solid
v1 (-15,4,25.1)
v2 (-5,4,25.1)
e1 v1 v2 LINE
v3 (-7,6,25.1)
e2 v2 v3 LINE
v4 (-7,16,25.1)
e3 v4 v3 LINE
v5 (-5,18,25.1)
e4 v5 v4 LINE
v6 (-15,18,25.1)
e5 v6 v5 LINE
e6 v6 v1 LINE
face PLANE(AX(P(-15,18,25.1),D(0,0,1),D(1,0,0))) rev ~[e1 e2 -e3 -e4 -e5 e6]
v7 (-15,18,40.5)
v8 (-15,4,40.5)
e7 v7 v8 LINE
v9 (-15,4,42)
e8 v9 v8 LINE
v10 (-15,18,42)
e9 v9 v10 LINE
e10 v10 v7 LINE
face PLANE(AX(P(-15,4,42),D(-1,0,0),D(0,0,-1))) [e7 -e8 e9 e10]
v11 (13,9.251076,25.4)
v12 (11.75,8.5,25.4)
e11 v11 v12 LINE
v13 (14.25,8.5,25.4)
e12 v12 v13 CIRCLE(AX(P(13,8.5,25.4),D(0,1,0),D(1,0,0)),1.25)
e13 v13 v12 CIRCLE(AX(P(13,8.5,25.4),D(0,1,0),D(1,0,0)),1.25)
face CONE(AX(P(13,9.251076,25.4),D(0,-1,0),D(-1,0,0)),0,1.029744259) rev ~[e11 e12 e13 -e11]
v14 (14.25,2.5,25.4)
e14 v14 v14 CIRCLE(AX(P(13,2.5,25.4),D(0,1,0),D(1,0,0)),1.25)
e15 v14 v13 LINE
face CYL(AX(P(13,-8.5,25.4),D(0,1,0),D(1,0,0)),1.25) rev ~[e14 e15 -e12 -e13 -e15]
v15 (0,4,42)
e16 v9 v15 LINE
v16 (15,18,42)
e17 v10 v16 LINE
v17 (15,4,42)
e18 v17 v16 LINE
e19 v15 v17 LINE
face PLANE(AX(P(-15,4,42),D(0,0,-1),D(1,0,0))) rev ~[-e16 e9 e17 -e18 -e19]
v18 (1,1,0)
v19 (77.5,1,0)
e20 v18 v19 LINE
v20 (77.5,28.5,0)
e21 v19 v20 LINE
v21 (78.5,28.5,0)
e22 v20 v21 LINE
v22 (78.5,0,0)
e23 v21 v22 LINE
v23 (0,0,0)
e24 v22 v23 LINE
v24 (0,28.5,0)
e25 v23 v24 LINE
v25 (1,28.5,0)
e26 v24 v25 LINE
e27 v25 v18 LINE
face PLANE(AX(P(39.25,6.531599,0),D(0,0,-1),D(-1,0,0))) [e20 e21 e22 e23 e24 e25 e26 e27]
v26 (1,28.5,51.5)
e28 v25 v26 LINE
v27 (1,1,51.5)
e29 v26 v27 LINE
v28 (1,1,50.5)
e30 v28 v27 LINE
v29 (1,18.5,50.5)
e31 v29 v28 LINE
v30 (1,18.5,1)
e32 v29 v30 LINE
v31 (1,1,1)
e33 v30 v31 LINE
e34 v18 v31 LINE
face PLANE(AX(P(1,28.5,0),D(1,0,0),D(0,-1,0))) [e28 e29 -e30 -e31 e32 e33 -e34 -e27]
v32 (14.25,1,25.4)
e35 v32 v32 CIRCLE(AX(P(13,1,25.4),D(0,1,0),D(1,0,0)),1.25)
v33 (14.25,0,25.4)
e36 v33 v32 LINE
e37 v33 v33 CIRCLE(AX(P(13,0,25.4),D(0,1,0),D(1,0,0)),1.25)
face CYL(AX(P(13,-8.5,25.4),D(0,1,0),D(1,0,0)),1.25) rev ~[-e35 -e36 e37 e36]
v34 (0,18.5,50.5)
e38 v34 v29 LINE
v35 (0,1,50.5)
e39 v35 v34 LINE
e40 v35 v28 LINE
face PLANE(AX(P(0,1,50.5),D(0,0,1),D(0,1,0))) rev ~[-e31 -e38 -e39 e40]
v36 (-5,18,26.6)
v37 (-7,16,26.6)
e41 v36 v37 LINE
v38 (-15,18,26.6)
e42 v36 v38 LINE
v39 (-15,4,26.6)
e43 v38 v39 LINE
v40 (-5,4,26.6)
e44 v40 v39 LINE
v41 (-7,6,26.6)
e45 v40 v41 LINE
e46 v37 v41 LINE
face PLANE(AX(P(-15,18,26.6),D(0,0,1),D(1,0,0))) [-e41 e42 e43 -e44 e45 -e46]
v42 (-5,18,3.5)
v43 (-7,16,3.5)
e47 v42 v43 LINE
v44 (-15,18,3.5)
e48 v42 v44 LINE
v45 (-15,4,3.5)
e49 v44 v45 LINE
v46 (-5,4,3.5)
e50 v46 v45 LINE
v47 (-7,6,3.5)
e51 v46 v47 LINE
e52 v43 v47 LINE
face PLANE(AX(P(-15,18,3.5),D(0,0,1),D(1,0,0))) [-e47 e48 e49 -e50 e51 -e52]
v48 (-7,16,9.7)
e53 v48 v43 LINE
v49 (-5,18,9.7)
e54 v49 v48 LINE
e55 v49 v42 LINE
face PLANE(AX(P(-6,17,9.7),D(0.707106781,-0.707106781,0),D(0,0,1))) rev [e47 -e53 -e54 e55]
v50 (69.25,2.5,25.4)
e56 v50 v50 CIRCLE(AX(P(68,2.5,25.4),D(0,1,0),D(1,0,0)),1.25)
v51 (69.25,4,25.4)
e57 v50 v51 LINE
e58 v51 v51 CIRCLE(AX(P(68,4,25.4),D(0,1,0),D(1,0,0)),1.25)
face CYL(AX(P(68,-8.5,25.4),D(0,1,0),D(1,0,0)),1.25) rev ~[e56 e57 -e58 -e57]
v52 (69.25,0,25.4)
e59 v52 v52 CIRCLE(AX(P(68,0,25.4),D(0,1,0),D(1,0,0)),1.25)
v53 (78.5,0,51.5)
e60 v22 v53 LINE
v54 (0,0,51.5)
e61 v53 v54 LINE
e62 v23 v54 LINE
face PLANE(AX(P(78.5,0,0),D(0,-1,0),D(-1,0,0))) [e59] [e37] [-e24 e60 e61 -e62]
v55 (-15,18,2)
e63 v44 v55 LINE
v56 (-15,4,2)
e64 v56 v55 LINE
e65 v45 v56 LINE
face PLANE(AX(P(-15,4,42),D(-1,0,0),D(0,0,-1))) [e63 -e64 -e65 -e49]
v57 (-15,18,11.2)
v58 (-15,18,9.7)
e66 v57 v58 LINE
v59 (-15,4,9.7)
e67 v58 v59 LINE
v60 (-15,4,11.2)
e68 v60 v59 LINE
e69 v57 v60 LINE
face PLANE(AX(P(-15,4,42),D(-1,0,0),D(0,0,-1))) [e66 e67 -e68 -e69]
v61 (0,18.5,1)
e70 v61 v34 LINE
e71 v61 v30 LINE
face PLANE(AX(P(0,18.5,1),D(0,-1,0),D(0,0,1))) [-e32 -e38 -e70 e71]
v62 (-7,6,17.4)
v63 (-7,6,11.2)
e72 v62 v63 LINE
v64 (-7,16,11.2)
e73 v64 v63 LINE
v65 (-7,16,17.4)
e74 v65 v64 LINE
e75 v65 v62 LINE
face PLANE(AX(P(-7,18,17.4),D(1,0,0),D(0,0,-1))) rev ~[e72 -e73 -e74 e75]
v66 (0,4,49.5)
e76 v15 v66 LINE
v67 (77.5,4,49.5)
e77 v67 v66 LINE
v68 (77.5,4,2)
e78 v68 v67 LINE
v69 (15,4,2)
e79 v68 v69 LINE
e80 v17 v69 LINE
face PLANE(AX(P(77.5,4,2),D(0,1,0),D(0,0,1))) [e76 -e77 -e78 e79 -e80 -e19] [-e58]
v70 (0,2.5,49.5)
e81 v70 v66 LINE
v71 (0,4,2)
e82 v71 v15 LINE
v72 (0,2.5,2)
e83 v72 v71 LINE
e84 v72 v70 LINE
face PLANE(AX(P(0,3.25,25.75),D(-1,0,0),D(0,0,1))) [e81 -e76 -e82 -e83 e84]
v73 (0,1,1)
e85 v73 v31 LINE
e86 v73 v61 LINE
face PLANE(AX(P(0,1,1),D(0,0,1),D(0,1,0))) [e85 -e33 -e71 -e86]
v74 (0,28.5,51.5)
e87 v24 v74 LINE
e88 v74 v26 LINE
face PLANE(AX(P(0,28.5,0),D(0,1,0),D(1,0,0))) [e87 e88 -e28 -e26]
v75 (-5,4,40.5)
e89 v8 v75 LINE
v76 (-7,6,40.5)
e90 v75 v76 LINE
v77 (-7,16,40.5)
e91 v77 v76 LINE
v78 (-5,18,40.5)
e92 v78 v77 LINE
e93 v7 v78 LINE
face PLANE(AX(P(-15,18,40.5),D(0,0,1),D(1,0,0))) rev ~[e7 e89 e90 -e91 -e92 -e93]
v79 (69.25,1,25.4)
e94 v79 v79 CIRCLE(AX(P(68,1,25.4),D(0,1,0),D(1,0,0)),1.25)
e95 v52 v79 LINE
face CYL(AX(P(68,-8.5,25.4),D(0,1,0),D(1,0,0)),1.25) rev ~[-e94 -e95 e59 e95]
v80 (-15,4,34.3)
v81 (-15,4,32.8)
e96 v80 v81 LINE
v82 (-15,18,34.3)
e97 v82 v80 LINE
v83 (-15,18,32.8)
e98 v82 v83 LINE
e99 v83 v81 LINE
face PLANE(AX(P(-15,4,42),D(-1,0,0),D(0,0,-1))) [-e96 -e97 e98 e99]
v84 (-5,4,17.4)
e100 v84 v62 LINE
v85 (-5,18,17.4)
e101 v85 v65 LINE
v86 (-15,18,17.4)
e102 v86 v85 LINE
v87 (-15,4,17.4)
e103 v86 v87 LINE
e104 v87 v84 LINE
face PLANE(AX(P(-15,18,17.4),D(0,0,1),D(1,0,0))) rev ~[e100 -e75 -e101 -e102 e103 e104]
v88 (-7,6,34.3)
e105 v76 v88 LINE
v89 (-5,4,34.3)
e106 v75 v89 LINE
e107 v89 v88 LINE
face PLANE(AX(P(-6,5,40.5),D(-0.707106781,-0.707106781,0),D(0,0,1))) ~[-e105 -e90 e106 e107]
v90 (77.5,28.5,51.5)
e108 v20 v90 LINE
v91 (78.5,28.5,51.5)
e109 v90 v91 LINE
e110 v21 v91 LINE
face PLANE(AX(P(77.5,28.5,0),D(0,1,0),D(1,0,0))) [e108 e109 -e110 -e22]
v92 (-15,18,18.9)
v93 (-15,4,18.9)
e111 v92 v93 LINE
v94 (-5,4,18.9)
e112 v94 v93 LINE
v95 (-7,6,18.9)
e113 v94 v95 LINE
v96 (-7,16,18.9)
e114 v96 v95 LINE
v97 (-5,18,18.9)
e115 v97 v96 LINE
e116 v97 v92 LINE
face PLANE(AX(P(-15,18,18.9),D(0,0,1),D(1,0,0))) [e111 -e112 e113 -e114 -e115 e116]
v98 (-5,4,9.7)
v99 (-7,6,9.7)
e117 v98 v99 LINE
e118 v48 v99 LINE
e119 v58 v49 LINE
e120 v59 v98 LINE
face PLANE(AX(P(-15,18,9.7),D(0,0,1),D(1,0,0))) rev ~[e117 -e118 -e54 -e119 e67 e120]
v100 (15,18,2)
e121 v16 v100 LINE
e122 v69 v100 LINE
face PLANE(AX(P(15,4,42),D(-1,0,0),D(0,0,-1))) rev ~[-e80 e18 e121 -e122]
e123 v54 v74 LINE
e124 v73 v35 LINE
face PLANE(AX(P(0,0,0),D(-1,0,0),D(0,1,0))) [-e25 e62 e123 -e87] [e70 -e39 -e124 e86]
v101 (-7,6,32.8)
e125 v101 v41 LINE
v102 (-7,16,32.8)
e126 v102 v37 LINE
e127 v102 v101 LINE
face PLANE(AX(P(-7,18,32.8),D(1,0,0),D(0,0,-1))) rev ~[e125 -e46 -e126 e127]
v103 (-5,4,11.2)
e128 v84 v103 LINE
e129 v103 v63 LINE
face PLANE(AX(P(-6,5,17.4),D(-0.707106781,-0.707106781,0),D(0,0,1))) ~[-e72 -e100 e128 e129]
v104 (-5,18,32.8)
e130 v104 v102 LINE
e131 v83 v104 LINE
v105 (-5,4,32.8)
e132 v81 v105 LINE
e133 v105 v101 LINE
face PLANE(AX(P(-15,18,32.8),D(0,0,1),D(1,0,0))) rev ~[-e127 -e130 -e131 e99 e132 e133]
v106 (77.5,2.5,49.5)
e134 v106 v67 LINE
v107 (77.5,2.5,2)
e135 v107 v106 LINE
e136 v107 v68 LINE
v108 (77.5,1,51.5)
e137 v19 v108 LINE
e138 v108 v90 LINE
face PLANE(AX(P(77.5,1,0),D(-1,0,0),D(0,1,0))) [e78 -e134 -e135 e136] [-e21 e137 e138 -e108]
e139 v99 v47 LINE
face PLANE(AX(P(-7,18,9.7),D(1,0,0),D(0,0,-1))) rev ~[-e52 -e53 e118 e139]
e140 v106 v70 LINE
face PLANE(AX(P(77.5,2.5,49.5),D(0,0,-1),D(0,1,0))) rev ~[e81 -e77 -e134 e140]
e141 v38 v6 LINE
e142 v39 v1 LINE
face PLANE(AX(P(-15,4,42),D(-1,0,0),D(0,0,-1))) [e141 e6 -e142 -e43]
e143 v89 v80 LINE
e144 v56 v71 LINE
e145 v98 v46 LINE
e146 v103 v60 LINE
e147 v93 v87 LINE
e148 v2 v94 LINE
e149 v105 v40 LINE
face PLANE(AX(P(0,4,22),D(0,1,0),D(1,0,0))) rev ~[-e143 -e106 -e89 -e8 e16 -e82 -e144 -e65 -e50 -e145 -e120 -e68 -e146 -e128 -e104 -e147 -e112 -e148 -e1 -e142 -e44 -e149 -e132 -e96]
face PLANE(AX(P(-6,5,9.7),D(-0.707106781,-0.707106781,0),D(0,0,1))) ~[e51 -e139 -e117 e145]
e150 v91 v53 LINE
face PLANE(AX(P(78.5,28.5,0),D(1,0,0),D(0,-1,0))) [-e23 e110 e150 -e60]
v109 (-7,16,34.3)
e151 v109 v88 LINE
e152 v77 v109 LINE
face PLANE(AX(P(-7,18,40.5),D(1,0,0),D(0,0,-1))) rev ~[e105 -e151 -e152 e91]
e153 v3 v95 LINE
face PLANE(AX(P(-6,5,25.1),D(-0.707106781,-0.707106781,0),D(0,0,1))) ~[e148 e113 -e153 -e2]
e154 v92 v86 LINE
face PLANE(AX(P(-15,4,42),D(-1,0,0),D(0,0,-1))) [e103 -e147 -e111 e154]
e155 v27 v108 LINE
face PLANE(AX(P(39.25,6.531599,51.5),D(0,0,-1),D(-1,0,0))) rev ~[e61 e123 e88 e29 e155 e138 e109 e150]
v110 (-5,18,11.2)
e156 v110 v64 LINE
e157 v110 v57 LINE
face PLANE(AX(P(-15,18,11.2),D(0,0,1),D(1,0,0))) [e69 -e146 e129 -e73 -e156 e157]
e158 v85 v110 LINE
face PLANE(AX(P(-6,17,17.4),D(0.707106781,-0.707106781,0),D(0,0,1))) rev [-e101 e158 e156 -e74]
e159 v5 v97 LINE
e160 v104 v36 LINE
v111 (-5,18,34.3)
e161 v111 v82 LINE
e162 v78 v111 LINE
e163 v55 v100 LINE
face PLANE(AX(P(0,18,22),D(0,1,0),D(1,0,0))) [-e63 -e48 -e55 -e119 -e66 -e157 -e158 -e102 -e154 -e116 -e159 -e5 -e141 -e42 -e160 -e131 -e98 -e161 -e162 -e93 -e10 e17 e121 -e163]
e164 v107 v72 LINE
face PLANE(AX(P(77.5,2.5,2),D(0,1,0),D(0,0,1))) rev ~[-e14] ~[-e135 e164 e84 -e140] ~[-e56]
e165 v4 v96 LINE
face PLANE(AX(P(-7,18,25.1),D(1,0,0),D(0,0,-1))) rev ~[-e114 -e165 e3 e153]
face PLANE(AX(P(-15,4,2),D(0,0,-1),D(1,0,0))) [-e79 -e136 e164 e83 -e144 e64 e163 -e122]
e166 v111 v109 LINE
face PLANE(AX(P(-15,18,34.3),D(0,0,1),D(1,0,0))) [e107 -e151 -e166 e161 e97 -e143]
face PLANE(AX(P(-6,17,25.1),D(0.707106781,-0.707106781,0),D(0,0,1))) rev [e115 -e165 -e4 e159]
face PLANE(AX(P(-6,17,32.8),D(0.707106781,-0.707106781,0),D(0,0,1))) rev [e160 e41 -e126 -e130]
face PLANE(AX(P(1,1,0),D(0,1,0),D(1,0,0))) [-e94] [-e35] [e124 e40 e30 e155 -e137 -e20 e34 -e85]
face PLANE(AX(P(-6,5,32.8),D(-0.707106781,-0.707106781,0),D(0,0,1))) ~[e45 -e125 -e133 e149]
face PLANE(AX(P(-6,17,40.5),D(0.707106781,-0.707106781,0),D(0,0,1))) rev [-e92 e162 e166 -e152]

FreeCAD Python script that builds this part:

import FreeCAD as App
import Part
import Sketcher


def edges_at(feature, points):
    """Names of the edges that pass closest to the given points."""
    edges = feature.Shape.Edges
    near = lambda p: min(range(len(edges)), key=lambda i: edges[i].distToShape(Part.Vertex(*p))[0])
    return sorted({f"Edge{near(p) + 1}" for p in points})

doc = App.newDocument("Part")
body = doc.addObject("PartDesign::Body", "Body")

sketch1 = doc.addObject("Sketcher::SketchObject", "Sketch")
body.addObject(sketch1)
sketch1.AttachmentSupport = (doc.XY_Plane, [""])
sketch1.MapMode = "FlatFace"
sketch1.addGeometry([
    Part.LineSegment(App.Vector(77.5, 1, 0), App.Vector(1, 1, 0)),
    Part.LineSegment(App.Vector(1, 1, 0), App.Vector(1, 28.5, 0)),
    Part.LineSegment(App.Vector(1, 28.5, 0), App.Vector(0, 28.5, 0)),
    Part.LineSegment(App.Vector(0, 28.5, 0), App.Vector(0, 0, 0)),
    Part.LineSegment(App.Vector(0, 0, 0), App.Vector(78.5, 0, 0)),
    Part.LineSegment(App.Vector(78.5, 0, 0), App.Vector(78.5, 28.5, 0)),
    Part.LineSegment(App.Vector(78.5, 28.5, 0), App.Vector(77.5, 28.5, 0)),
    Part.LineSegment(App.Vector(77.5, 28.5, 0), App.Vector(77.5, 1, 0)),
], False)
sketch1.addConstraint([
    Sketcher.Constraint("Coincident", 0, 2, 1, 1),
    Sketcher.Constraint("Coincident", 1, 2, 2, 1),
    Sketcher.Constraint("Coincident", 2, 2, 3, 1),
    Sketcher.Constraint("Coincident", 3, 2, 4, 1),
    Sketcher.Constraint("Coincident", 4, 2, 5, 1),
    Sketcher.Constraint("Coincident", 5, 2, 6, 1),
    Sketcher.Constraint("Coincident", 6, 2, 7, 1),
    Sketcher.Constraint("Coincident", 7, 2, 0, 1),
    Sketcher.Constraint("Horizontal", 0),
    Sketcher.Constraint("Vertical", 1),
    Sketcher.Constraint("Horizontal", 2),
    Sketcher.Constraint("Vertical", 3),
    Sketcher.Constraint("Horizontal", 4),
    Sketcher.Constraint("Vertical", 5),
    Sketcher.Constraint("Horizontal", 6),
    Sketcher.Constraint("Vertical", 7),
    Sketcher.Constraint("Coincident", 3, 2, -1, 1),
    Sketcher.Constraint("Horizontal", 2, 2, 5, 2),
    Sketcher.Constraint("Equal", 2, 6),
    Sketcher.Constraint("DistanceX", 2, 2, 2, 1, 1.0),
    Sketcher.Constraint("DistanceX", 0, 2, 0, 1, 76.5),
    Sketcher.Constraint("DistanceY", 1, 1, 1, 2, 27.5),
    Sketcher.Constraint("DistanceY", 3, 2, 3, 1, 28.5),
])
pad1 = doc.addObject("PartDesign::Pad", "Pad")
body.addObject(pad1)
pad1.Profile = sketch1
pad1.Length = 51.5

sketch2 = doc.addObject("Sketcher::SketchObject", "Sketch001")
body.addObject(sketch2)
sketch2.AttachmentSupport = (doc.YZ_Plane, [""])
sketch2.MapMode = "FlatFace"
sketch2.addGeometry([
    Part.LineSegment(App.Vector(18, 1, 0), App.Vector(1, 1, 0)),
    Part.LineSegment(App.Vector(1, 1, 0), App.Vector(1, 50, 0)),
    Part.LineSegment(App.Vector(1, 50, 0), App.Vector(18, 50, 0)),
    Part.LineSegment(App.Vector(18, 50, 0), App.Vector(18, 1, 0)),
], False)
sketch2.addConstraint([
    Sketcher.Constraint("Coincident", 0, 2, 1, 1),
    Sketcher.Constraint("Coincident", 1, 2, 2, 1),
    Sketcher.Constraint("Coincident", 2, 2, 3, 1),
    Sketcher.Constraint("Coincident", 3, 2, 0, 1),
    Sketcher.Constraint("Horizontal", 0),
    Sketcher.Constraint("Vertical", 1),
    Sketcher.Constraint("Horizontal", 2),
    Sketcher.Constraint("Vertical", 3),
    Sketcher.Constraint("DistanceX", 0, 2, 0, 1, 17.5),
    Sketcher.Constraint("DistanceY", 1, 1, 1, 2, 49.5),
    Sketcher.Constraint("DistanceX", -1, 1, 0, 2, 1.0),
    Sketcher.Constraint("DistanceY", -1, 1, 0, 2, 1.0),
])
pocket1 = doc.addObject("PartDesign::Pocket", "Pocket")
body.addObject(pocket1)
pocket1.Profile = sketch2
pocket1.Length = 10
pocket1.Reversed = True

sketch3 = doc.addObject("Sketcher::SketchObject", "Sketch002")
body.addObject(sketch3)
sketch3.AttachmentSupport = (doc.YZ_Plane, [""])
sketch3.MapMode = "FlatFace"
sketch3.AttachmentOffset = App.Placement(App.Vector(0, 0, 77.5), App.Rotation())
sketch3.addGeometry([
    Part.LineSegment(App.Vector(4, 2, 0), App.Vector(2.5, 2, 0)),
    Part.LineSegment(App.Vector(2.5, 2, 0), App.Vector(2.5, 49.5, 0)),
    Part.LineSegment(App.Vector(2.5, 49.5, 0), App.Vector(4, 49.5, 0)),
    Part.LineSegment(App.Vector(4, 49.5, 0), App.Vector(4, 2, 0)),
], False)
sketch3.addConstraint([
    Sketcher.Constraint("Coincident", 0, 2, 1, 1),
    Sketcher.Constraint("Coincident", 1, 2, 2, 1),
    Sketcher.Constraint("Coincident", 2, 2, 3, 1),
    Sketcher.Constraint("Coincident", 3, 2, 0, 1),
    Sketcher.Constraint("Horizontal", 0),
    Sketcher.Constraint("Vertical", 1),
    Sketcher.Constraint("Horizontal", 2),
    Sketcher.Constraint("Vertical", 3),
    Sketcher.Constraint("DistanceX", 0, 2, 0, 1, 1.5),
    Sketcher.Constraint("DistanceY", 1, 1, 1, 2, 47.5),
    Sketcher.Constraint("DistanceY", -1, 1, 0, 2, 2.0),
    Sketcher.Constraint("DistanceX", -1, 1, 2, 2, 4.0),
])
pad2 = doc.addObject("PartDesign::Pad", "Pad001")
body.addObject(pad2)
pad2.Profile = sketch3
pad2.Length = 77.5
pad2.Reversed = True

sketch4 = doc.addObject("Sketcher::SketchObject", "Sketch003")
body.addObject(sketch4)
sketch4.AttachmentSupport = (doc.XZ_Plane, [""])
sketch4.MapMode = "FlatFace"
sketch4.AttachmentOffset = App.Placement(App.Vector(0, 0, -4), App.Rotation())
sketch4.addGeometry([
    Part.LineSegment(App.Vector(-15, 2, 0), App.Vector(-15, 42, 0)),
    Part.LineSegment(App.Vector(-15, 42, 0), App.Vector(15, 42, 0)),
    Part.LineSegment(App.Vector(15, 42, 0), App.Vector(15, 2, 0)),
    Part.LineSegment(App.Vector(15, 2, 0), App.Vector(-15, 2, 0)),
], False)
sketch4.addConstraint([
    Sketcher.Constraint("Coincident", 0, 2, 1, 1),
    Sketcher.Constraint("Coincident", 1, 2, 2, 1),
    Sketcher.Constraint("Coincident", 2, 2, 3, 1),
    Sketcher.Constraint("Coincident", 3, 2, 0, 1),
    Sketcher.Constraint("Vertical", 0),
    Sketcher.Constraint("Horizontal", 1),
    Sketcher.Constraint("Vertical", 2),
    Sketcher.Constraint("Horizontal", 3),
    Sketcher.Constraint("DistanceX", 1, 1, 1, 2, 30.0),
    Sketcher.Constraint("DistanceY", 0, 1, 0, 2, 40.0),
    Sketcher.Constraint("DistanceX", 0, 2, -1, 1, 15.0),
    Sketcher.Constraint("DistanceY", -1, 1, 0, 2, 42.0),
])
pad3 = doc.addObject("PartDesign::Pad", "Pad002")
body.addObject(pad3)
pad3.Profile = sketch4
pad3.Length = 14
pad3.Reversed = True

sketch5 = doc.addObject("Sketcher::SketchObject", "Sketch004")
body.addObject(sketch5)
sketch5.AttachmentSupport = (doc.XZ_Plane, [""])
sketch5.MapMode = "FlatFace"
sketch5.AttachmentOffset = App.Placement(App.Vector(0, 0, -18), App.Rotation())
sketch5.addGeometry([
    Part.LineSegment(App.Vector(-15, 4, 0), App.Vector(-15, 10, 0)),
    Part.LineSegment(App.Vector(-15, 10, 0), App.Vector(-7, 10, 0)),
    Part.LineSegment(App.Vector(-7, 10, 0), App.Vector(-7, 4, 0)),
    Part.LineSegment(App.Vector(-7, 4, 0), App.Vector(-15, 4, 0)),
    Part.LineSegment(App.Vector(-15, 34, 0), App.Vector(-15, 40, 0)),
    Part.LineSegment(App.Vector(-15, 40, 0), App.Vector(-7, 40, 0)),
    Part.LineSegment(App.Vector(-7, 40, 0), App.Vector(-7, 34, 0)),
    Part.LineSegment(App.Vector(-7, 34, 0), App.Vector(-15, 34, 0)),
    Part.LineSegment(App.Vector(-15, 11, 0), App.Vector(-15, 17, 0)),
    Part.LineSegment(App.Vector(-15, 17, 0), App.Vector(-7, 17, 0)),
    Part.LineSegment(App.Vector(-7, 17, 0), App.Vector(-7, 11, 0)),
    Part.LineSegment(App.Vector(-7, 11, 0), App.Vector(-15, 11, 0)),
    Part.LineSegment(App.Vector(-15, 19, 0), App.Vector(-15, 25, 0)),
    Part.LineSegment(App.Vector(-15, 25, 0), App.Vector(-7, 25, 0)),
    Part.LineSegment(App.Vector(-7, 25, 0), App.Vector(-7, 19, 0)),
    Part.LineSegment(App.Vector(-7, 19, 0), App.Vector(-15, 19, 0)),
    Part.LineSegment(App.Vector(-15, 27, 0), App.Vector(-15, 33, 0)),
    Part.LineSegment(App.Vector(-15, 33, 0), App.Vector(-7, 33, 0)),
    Part.LineSegment(App.Vector(-7, 33, 0), App.Vector(-7, 27, 0)),
    Part.LineSegment(App.Vector(-7, 27, 0), App.Vector(-15, 27, 0)),
], False)
sketch5.addConstraint([
    Sketcher.Constraint("Coincident", 0, 2, 1, 1),
    Sketcher.Constraint("Coincident", 1, 2, 2, 1),
    Sketcher.Constraint("Coincident", 2, 2, 3, 1),
    Sketcher.Constraint("Coincident", 3, 2, 0, 1),
    Sketcher.Constraint("Coincident", 4, 2, 5, 1),
    Sketcher.Constraint("Coincident", 5, 2, 6, 1),
    Sketcher.Constraint("Coincident", 6, 2, 7, 1),
    Sketcher.Constraint("Coincident", 7, 2, 4, 1),
    Sketcher.Constraint("Coincident", 8, 2, 9, 1),
    Sketcher.Constraint("Coincident", 9, 2, 10, 1),
    Sketcher.Constraint("Coincident", 10, 2, 11, 1),
    Sketcher.Constraint("Coincident", 11, 2, 8, 1),
    Sketcher.Constraint("Coincident", 12, 2, 13, 1),
    Sketcher.Constraint("Coincident", 13, 2, 14, 1),
    Sketcher.Constraint("Coincident", 14, 2, 15, 1),
    Sketcher.Constraint("Coincident", 15, 2, 12, 1),
    Sketcher.Constraint("Coincident", 16, 2, 17, 1),
    Sketcher.Constraint("Coincident", 17, 2, 18, 1),
    Sketcher.Constraint("Coincident", 18, 2, 19, 1),
    Sketcher.Constraint("Coincident", 19, 2, 16, 1),
    Sketcher.Constraint("Vertical", 0),
    Sketcher.Constraint("Horizontal", 1),
    Sketcher.Constraint("Vertical", 2),
    Sketcher.Constraint("Horizontal", 3),
    Sketcher.Constraint("Vertical", 4),
    Sketcher.Constraint("Horizontal", 5),
    Sketcher.Constraint("Vertical", 6),
    Sketcher.Constraint("Horizontal", 7),
    Sketcher.Constraint("Vertical", 8),
    Sketcher.Constraint("Horizontal", 9),
    Sketcher.Constraint("Vertical", 10),
    Sketcher.Constraint("Horizontal", 11),
    Sketcher.Constraint("Vertical", 12),
    Sketcher.Constraint("Horizontal", 13),
    Sketcher.Constraint("Vertical", 14),
    Sketcher.Constraint("Horizontal", 15),
    Sketcher.Constraint("Vertical", 16),
    Sketcher.Constraint("Horizontal", 17),
    Sketcher.Constraint("Vertical", 18),
    Sketcher.Constraint("Horizontal", 19),
    Sketcher.Constraint("Vertical", 3, 2, 4, 2),
    Sketcher.Constraint("Vertical", 2, 2, 5, 2),
    Sketcher.Constraint("Vertical", 7, 2, 8, 2),
    Sketcher.Constraint("Vertical", 6, 2, 9, 2),
    Sketcher.Constraint("Vertical", 11, 2, 12, 2),
    Sketcher.Constraint("Vertical", 10, 2, 13, 2),
    Sketcher.Constraint("Vertical", 15, 2, 16, 2),
    Sketcher.Constraint("Vertical", 14, 2, 17, 2),
    Sketcher.Constraint("Equal", 2, 4),
    Sketcher.Constraint("Equal", 6, 8),
    Sketcher.Constraint("Equal", 10, 12),
    Sketcher.Constraint("Equal", 14, 16),
    Sketcher.Constraint("DistanceX", 1, 1, 1, 2, 8.0),
    Sketcher.Constraint("DistanceY", 0, 1, 0, 2, 6.2),
    Sketcher.Constraint("DistanceX", 0, 2, -1, 1, 15.0),
    Sketcher.Constraint("DistanceY", 3, 2, 4, 2, 37.0),
    Sketcher.Constraint("DistanceY", -1, 1, 0, 2, 9.7),
    Sketcher.Constraint("DistanceY", -1, 1, 8, 2, 17.4),
    Sketcher.Constraint("DistanceY", -1, 1, 12, 2, 25.1),
    Sketcher.Constraint("DistanceY", -1, 1, 16, 2, 32.8),
])
pocket2 = doc.addObject("PartDesign::Pocket", "Pocket001")
body.addObject(pocket2)
pocket2.Profile = sketch5
pocket2.Length = 24
pocket2.Reversed = True
doc.recompute()

chamfer = doc.addObject("PartDesign::Chamfer", "Chamfer")
body.addObject(chamfer)
chamfer.Base = (pocket2, edges_at(pocket2, [
    (-7, 4, 14.3),
    (-7, 18, 14.3),
    (-7, 4, 22),
    (-7, 18, 22),
    (-7, 4, 29.7),
    (-7, 18, 29.7),
    (-7, 4, 37.4),
    (-7, 18, 37.4),
    (-7, 4, 6.6),
    (-7, 18, 6.6),
]))
chamfer.Size = 2

sketch6 = doc.addObject("Sketcher::SketchObject", "Sketch005")
body.addObject(sketch6)
sketch6.AttachmentSupport = (doc.XZ_Plane, [""])
sketch6.MapMode = "FlatFace"
sketch6.addGeometry([
    Part.Circle(App.Vector(13, 25.4, 0), App.Vector(0, 0, 1), 1.2),
    Part.Circle(App.Vector(68, 25.4, 0), App.Vector(0, 0, 1), 1.2),
], False)
sketch6.addConstraint([
    Sketcher.Constraint("Equal", 0, 1),
    Sketcher.Constraint("Horizontal", 0, 3, 1, 3),
    Sketcher.Constraint("Diameter", 0, 2.5),
    Sketcher.Constraint("DistanceX", -1, 1, 0, 3, 13.0),
    Sketcher.Constraint("DistanceX", -1, 1, 1, 3, 68.0),
    Sketcher.Constraint("DistanceY", -1, 1, 0, 3, 25.4),
])
doc.recompute()
hole = doc.addObject("PartDesign::Hole", "Hole")
body.addObject(hole)
hole.Profile = sketch6
hole.ThreadType = "None"
hole.Diameter = 2.5
hole.DepthType = "Dimension"
hole.Depth = 8.5
hole.DrillPoint = "Angled"
hole.DrillPointAngle = 118

doc.recompute()
